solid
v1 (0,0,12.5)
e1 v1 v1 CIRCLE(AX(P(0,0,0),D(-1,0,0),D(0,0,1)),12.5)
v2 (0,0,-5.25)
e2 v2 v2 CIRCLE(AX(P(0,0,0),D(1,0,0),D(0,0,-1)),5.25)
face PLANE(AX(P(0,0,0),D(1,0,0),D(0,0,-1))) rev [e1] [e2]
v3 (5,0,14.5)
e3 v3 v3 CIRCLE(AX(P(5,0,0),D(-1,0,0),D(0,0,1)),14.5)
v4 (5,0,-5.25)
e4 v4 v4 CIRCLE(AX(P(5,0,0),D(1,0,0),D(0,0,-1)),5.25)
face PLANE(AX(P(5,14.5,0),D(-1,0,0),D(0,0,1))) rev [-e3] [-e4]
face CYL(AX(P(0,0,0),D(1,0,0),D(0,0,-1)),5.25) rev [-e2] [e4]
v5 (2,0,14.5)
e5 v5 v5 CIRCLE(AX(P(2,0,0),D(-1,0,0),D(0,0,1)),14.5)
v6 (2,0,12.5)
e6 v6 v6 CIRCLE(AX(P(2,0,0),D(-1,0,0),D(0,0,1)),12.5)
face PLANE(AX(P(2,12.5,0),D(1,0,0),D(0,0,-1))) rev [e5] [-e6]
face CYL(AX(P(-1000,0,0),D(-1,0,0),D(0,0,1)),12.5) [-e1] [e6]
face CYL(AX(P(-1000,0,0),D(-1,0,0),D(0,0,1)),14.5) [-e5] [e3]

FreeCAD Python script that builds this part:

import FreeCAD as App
import Part
import Sketcher

V = App.Vector
Q = App.Units.Quantity

doc = App.newDocument("Part")
body = doc.addObject("PartDesign::Body", "Body")

# Sketch on XY plane
sketch1 = body.newObject("Sketcher::SketchObject", "Sketch")
sketch1.AttachmentSupport = (doc.getObject("XY_Plane"), [""])
sketch1.MapMode = "FlatFace"
sketch1.addGeometry([
    Part.LineSegment(V(0, 12.5, 0), V(0, 0, 0)),  # 0
    Part.LineSegment(V(0, 0, 0), V(5, 0, 0)),  # 1
    Part.LineSegment(V(5, 0, 0), V(5, 14.5, 0)),  # 2
    Part.LineSegment(V(5, 14.5, 0), V(2, 14.5, 0)),  # 3
    Part.LineSegment(V(2, 14.5, 0), V(2, 12.5, 0)),  # 4
    Part.LineSegment(V(2, 12.5, 0), V(0, 12.5, 0)),  # 5
], False)
sketch1.addConstraint([
    Sketcher.Constraint("Coincident", 0, 2, 1, 1),
    Sketcher.Constraint("Coincident", 1, 2, 2, 1),
    Sketcher.Constraint("Coincident", 2, 2, 3, 1),
    Sketcher.Constraint("Coincident", 3, 2, 4, 1),
    Sketcher.Constraint("Coincident", 4, 2, 5, 1),
    Sketcher.Constraint("Coincident", 5, 2, 0, 1),
    Sketcher.Constraint("Vertical", 0),
    Sketcher.Constraint("Horizontal", 1),
    Sketcher.Constraint("Vertical", 2),
    Sketcher.Constraint("Horizontal", 3),
    Sketcher.Constraint("Vertical", 4),
    Sketcher.Constraint("Horizontal", 5),
    Sketcher.Constraint("Coincident", 0, 2, -1, 1),
    Sketcher.Constraint("Equal", 5, 4),
    Sketcher.Constraint("DistanceX", 1, 1, 1, 2, Q("5 mm")),
    Sketcher.Constraint("DistanceX", 3, 2, 3, 1, Q("3 mm")),
    Sketcher.Constraint("DistanceY", 0, 2, 0, 1, Q("12.5 mm")),
])
revolution = body.newObject("PartDesign::Revolution", "Revolution")
revolution.Profile = sketch1
revolution.ReferenceAxis = (sketch1, ["H_Axis"])
revolution.Angle = 360

# Sketch on YZ plane
sketch2 = body.newObject("Sketcher::SketchObject", "Sketch001")
sketch2.AttachmentSupport = (doc.getObject("YZ_Plane"), [""])
sketch2.MapMode = "FlatFace"
sketch2.AttachmentOffset = App.Placement(V(0, 0, 5), App.Rotation())
sketch2.addGeometry(Part.Circle(V(0, 0, 0), V(0, 0, 1), 5), False)
sketch2.addConstraint([
    Sketcher.Constraint("Coincident", 0, 3, -1, 1),
    Sketcher.Constraint("Diameter", 0, Q("10.5 mm")),
])
pocket1 = body.newObject("PartDesign::Pocket", "Pocket")
pocket1.Profile = sketch2
pocket1.Type = "ThroughAll"

doc.recompute()
